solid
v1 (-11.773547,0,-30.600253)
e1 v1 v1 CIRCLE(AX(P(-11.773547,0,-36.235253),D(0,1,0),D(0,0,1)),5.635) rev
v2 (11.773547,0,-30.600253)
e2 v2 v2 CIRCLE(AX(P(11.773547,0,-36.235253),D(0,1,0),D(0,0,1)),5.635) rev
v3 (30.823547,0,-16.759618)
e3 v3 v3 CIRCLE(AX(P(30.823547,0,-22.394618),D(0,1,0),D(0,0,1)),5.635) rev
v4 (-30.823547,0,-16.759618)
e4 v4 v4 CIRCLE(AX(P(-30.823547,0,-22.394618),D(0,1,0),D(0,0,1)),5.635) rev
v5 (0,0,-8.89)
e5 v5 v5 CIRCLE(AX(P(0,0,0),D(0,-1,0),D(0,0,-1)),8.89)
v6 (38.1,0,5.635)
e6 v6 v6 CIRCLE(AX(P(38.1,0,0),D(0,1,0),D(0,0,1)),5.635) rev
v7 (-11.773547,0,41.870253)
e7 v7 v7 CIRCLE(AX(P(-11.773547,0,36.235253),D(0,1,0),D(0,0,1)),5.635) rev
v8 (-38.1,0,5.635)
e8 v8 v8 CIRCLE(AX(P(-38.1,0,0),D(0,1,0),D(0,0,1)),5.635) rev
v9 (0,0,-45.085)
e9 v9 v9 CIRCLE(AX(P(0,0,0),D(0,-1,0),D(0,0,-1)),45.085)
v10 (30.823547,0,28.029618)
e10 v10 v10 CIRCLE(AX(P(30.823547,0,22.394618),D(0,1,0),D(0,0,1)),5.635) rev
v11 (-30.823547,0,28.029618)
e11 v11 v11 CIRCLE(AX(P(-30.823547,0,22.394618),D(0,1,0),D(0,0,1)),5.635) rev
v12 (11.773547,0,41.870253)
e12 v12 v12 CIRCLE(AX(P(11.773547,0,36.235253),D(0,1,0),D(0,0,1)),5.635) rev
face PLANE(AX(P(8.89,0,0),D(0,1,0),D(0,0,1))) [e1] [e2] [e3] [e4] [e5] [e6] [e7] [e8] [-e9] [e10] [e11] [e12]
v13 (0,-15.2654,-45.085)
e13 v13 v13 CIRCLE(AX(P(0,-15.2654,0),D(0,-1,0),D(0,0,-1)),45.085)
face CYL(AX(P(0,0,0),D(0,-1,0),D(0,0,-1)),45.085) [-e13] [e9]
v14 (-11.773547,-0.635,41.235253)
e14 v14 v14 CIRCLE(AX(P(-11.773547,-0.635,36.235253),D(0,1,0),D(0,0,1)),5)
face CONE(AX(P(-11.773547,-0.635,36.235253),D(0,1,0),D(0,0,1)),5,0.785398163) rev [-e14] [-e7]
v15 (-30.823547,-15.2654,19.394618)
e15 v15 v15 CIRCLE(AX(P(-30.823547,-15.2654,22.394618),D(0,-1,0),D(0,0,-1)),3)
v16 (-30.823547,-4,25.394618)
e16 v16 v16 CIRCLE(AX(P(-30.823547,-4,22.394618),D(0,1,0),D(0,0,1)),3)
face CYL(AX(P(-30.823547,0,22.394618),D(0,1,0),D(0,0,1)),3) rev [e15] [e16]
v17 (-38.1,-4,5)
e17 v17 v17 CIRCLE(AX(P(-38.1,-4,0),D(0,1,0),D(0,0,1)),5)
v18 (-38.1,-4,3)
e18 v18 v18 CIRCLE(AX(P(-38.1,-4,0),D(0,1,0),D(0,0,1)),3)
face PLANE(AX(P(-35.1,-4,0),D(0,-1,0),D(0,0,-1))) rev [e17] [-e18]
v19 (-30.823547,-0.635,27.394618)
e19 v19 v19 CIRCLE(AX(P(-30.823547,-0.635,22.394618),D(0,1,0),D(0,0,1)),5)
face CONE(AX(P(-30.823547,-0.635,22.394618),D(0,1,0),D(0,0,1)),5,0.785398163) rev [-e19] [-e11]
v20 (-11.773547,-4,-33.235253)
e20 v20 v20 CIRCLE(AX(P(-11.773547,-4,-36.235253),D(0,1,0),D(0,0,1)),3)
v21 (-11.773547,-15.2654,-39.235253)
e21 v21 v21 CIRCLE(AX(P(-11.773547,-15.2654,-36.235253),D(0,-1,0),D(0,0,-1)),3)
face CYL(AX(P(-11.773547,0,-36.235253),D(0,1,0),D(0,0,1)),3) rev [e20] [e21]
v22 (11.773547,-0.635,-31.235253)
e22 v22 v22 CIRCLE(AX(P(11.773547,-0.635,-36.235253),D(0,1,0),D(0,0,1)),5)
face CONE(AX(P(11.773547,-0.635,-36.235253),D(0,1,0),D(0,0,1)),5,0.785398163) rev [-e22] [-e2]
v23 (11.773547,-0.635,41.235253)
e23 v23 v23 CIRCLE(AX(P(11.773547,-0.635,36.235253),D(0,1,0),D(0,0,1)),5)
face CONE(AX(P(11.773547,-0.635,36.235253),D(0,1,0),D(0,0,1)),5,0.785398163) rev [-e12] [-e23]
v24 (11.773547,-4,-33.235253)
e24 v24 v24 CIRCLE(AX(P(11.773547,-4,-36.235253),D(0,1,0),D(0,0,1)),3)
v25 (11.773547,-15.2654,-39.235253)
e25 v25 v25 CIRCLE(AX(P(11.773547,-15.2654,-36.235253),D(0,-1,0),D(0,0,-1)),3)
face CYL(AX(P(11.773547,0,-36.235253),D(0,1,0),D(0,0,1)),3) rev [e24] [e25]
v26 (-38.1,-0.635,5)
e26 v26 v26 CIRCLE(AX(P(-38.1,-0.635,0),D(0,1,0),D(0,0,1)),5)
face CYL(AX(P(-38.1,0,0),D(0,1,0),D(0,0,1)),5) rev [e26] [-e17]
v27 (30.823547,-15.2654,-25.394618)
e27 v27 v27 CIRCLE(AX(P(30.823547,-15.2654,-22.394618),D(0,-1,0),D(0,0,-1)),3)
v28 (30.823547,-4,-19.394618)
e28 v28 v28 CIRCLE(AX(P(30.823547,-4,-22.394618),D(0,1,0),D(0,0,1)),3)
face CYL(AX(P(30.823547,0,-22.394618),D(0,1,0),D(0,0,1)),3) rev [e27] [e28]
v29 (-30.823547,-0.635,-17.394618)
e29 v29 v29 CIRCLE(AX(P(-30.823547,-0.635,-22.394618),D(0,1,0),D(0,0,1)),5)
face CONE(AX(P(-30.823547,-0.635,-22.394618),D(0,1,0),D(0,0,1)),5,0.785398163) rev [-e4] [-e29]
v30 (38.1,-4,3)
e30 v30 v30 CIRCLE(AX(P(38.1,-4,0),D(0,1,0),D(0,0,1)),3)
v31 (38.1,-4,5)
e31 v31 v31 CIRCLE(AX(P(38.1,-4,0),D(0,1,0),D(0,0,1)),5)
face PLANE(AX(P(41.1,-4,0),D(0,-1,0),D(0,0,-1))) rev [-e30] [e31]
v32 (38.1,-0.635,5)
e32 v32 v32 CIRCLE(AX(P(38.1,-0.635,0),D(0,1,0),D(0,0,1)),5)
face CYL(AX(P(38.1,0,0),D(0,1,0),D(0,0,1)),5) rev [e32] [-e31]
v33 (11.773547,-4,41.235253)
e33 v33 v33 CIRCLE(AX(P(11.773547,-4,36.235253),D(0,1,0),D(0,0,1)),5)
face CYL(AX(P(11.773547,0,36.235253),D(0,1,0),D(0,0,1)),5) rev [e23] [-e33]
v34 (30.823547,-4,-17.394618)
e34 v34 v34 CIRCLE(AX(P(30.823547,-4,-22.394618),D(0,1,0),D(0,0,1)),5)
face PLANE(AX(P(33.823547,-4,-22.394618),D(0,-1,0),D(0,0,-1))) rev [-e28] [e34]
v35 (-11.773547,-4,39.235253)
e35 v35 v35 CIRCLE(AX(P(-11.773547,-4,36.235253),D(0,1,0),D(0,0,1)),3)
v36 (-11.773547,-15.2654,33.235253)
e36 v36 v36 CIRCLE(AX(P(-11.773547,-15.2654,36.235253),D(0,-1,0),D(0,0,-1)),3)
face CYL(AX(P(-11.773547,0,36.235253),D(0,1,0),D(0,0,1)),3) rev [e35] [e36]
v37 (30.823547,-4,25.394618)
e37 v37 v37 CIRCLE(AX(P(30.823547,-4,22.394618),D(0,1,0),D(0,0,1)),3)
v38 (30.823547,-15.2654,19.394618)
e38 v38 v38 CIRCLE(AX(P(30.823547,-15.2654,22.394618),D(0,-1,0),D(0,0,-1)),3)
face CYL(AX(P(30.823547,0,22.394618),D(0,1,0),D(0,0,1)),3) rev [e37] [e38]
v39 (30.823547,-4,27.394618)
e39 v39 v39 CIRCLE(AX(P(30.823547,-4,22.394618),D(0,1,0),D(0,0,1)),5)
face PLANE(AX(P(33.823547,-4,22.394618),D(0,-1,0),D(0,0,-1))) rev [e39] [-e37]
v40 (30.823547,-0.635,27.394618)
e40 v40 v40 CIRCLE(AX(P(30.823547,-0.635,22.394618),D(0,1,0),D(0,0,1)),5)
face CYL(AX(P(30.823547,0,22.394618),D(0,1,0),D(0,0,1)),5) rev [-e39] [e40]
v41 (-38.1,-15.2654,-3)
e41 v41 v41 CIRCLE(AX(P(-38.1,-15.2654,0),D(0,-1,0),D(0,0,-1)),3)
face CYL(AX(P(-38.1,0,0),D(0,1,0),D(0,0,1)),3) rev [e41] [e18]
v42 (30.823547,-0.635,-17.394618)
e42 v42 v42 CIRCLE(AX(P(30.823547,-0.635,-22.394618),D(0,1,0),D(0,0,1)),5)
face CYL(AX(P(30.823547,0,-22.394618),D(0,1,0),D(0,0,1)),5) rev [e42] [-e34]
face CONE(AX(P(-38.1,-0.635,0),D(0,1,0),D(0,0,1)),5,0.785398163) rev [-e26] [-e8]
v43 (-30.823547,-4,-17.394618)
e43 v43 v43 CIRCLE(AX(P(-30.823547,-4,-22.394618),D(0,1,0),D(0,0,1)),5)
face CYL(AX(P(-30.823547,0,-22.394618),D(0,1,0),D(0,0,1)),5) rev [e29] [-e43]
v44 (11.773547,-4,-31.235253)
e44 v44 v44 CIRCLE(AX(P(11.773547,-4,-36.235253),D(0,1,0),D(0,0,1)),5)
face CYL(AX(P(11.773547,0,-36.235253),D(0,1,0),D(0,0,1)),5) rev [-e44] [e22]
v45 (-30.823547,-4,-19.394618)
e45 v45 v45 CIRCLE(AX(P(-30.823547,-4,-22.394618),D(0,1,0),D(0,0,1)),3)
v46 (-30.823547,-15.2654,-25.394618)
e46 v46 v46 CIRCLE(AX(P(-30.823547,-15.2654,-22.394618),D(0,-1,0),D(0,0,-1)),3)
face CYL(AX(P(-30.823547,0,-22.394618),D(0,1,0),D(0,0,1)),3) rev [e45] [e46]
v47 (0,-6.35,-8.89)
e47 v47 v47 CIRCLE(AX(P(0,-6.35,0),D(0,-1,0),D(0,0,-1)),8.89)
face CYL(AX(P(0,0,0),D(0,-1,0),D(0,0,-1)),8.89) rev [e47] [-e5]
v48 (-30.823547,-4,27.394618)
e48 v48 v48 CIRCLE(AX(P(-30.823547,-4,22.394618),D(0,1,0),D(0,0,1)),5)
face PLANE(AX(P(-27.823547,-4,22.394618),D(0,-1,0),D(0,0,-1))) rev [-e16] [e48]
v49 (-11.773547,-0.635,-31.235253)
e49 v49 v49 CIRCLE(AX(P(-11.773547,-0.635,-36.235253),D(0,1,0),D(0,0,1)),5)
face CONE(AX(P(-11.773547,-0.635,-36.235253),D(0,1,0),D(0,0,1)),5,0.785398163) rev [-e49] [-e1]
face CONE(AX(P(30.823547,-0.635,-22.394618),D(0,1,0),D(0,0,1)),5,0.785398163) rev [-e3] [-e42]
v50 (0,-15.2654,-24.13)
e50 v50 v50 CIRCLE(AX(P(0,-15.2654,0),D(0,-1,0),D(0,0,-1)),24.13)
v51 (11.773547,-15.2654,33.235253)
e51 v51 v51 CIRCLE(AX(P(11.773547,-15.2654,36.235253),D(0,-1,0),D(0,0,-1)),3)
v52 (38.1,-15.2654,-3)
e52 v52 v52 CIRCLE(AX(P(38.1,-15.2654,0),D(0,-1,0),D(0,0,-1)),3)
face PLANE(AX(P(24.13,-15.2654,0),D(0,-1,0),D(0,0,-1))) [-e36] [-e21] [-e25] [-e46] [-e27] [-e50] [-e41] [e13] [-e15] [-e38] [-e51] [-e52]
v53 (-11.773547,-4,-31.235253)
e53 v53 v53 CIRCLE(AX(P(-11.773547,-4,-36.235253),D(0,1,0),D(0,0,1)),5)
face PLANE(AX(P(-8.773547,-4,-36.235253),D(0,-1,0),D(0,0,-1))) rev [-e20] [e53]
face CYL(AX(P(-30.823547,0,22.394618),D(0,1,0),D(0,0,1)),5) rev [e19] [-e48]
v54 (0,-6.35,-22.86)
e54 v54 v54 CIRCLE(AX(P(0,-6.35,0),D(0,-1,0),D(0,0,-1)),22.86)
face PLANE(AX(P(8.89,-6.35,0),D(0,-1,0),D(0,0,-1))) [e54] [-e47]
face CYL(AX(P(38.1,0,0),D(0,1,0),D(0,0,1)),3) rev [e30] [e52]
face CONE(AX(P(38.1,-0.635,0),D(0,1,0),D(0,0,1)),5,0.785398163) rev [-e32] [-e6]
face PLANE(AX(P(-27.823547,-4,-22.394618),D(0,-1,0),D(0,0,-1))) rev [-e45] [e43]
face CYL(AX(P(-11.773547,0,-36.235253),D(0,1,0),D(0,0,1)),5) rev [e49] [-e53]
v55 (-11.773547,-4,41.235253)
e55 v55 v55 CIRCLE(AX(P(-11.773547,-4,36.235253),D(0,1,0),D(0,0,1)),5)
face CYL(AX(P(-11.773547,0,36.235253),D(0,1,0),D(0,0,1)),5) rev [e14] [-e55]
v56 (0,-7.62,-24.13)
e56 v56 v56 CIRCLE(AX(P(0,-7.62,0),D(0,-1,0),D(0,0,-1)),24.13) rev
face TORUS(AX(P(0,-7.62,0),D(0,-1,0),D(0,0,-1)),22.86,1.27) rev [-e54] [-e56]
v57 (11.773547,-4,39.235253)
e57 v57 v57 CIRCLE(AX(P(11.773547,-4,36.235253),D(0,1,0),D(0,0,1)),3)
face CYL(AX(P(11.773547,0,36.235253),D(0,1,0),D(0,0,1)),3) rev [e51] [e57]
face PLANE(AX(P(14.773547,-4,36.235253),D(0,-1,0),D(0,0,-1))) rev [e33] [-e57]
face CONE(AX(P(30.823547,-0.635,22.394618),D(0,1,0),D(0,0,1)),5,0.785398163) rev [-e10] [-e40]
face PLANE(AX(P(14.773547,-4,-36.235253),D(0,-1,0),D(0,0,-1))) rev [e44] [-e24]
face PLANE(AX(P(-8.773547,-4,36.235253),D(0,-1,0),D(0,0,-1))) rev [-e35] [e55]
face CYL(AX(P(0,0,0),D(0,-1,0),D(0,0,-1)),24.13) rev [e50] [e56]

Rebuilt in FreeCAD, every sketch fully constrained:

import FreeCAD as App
import Part
import Sketcher
from FreeCAD import Vector
Q = App.Units.Quantity


def edges_at(feature, points):
    """Names of the edges that pass closest to the given points."""
    edges = feature.Shape.Edges
    near = lambda p: min(range(len(edges)), key=lambda i: edges[i].distToShape(Part.Vertex(*p))[0])
    return sorted({f"Edge{near(p) + 1}" for p in points})

doc = App.newDocument("Part")
body = doc.addObject("PartDesign::Body", "Body")

# Sketch on XY plane
sketch1 = body.newObject("Sketcher::SketchObject", "Sketch")
sketch1.AttachmentSupport = (doc.getObject("XY_Plane"), [""])
sketch1.MapMode = "FlatFace"
sketch1.addGeometry([
    Part.LineSegment(Vector(45, 0, 0), Vector(9, 0, 0)),  # 0
    Part.LineSegment(Vector(9, 0, 0), Vector(9, -6, 0)),  # 1
    Part.LineSegment(Vector(9, -6, 0), Vector(24, -6, 0)),  # 2
    Part.LineSegment(Vector(24, -6, 0), Vector(24, -15, 0)),  # 3
    Part.LineSegment(Vector(24, -15, 0), Vector(45, -15, 0)),  # 4
    Part.LineSegment(Vector(45, -15, 0), Vector(45, 0, 0)),  # 5
], False)
sketch1.addConstraint([
    Sketcher.Constraint("Coincident", 0, 2, 1, 1),
    Sketcher.Constraint("Coincident", 1, 2, 2, 1),
    Sketcher.Constraint("Coincident", 2, 2, 3, 1),
    Sketcher.Constraint("Coincident", 3, 2, 4, 1),
    Sketcher.Constraint("Coincident", 4, 2, 5, 1),
    Sketcher.Constraint("Coincident", 5, 2, 0, 1),
    Sketcher.Constraint("Horizontal", 0),
    Sketcher.Constraint("Vertical", 1),
    Sketcher.Constraint("Horizontal", 2),
    Sketcher.Constraint("Vertical", 3),
    Sketcher.Constraint("Horizontal", 4),
    Sketcher.Constraint("Vertical", 5),
    Sketcher.Constraint("PointOnObject", 0, 2, -1),
    Sketcher.Constraint("DistanceX", 2, 1, 2, 2, Q("0.6 in")),
    Sketcher.Constraint("DistanceY", 1, 2, 1, 1, Q("0.25 in")),
    Sketcher.Constraint("DistanceX", 0, 2, 0, 1, Q("1.425 in")),
    Sketcher.Constraint("DistanceY", 3, 2, 3, 1, Q("0.351 in")),
    Sketcher.Constraint("DistanceX", -1, 1, 0, 2, Q("0.35 in")),
])
revolution = body.newObject("PartDesign::Revolution", "Revolution")
revolution.Profile = sketch1
revolution.ReferenceAxis = (sketch1, ["V_Axis"])
revolution.Angle = 360

# Sketch on XZ plane
sketch2 = body.newObject("Sketcher::SketchObject", "Sketch001")
sketch2.AttachmentSupport = (doc.getObject("XZ_Plane"), [""])
sketch2.MapMode = "FlatFace"
sketch2.addGeometry(Part.Circle(Vector(38.1, 0, 0), Vector(0, 0, 1), 3), False)
sketch2.addConstraint([
    Sketcher.Constraint("PointOnObject", 0, 3, -1),
    Sketcher.Constraint("DistanceX", -1, 1, 0, 3, Q("1.5 in")),
    Sketcher.Constraint("Diameter", 0, Q("6 mm")),
])
doc.recompute()
hole = body.newObject("PartDesign::Hole", "Hole")
hole.Profile = sketch2
hole.ThreadType = "None"
hole.Diameter = 6
hole.DepthType = "Dimension"
hole.Depth = 15.2664
hole.DrillPoint = "Flat"
hole.HoleCutType = "Counterbore"
hole.HoleCutDiameter = 10
hole.HoleCutDepth = 4
hole.Reversed = True
doc.recompute()

chamfer = body.newObject("PartDesign::Chamfer", "Chamfer")
chamfer.Base = (hole, edges_at(hole, [(33.1, 0, 0)]))
chamfer.Size = Q("0.025 in")
doc.recompute()

polarpattern = body.newObject("PartDesign::PolarPattern", "PolarPattern")
polarpattern.Originals = [hole]
polarpattern.Axis = (doc.getObject("Y_Axis"), [""])
polarpattern.Angle = 360
polarpattern.Occurrences = 10
body.Tip = polarpattern
doc.recompute()

chamfer2 = body.newObject("PartDesign::Chamfer", "Chamfer001")
chamfer2.Base = (polarpattern, edges_at(polarpattern, [
    (26.778, 0, -19.456),
    (10.228, 0, -31.48),
    (-10.228, 0, -31.48),
    (-26.778, 0, -19.456),
    (-33.1, 0, 0),
    (-26.778, 0, 19.456),
    (-10.228, 0, 31.48),
    (10.228, 0, 31.48),
    (26.778, 0, 19.456),
]))
chamfer2.Size = Q("0.025 in")
doc.recompute()

fillet = body.newObject("PartDesign::Fillet", "Fillet")
fillet.Base = (chamfer2, edges_at(chamfer2, [(-24.13, -6.35, 0)]))
fillet.Radius = Q("0.05 in")

doc.recompute()
